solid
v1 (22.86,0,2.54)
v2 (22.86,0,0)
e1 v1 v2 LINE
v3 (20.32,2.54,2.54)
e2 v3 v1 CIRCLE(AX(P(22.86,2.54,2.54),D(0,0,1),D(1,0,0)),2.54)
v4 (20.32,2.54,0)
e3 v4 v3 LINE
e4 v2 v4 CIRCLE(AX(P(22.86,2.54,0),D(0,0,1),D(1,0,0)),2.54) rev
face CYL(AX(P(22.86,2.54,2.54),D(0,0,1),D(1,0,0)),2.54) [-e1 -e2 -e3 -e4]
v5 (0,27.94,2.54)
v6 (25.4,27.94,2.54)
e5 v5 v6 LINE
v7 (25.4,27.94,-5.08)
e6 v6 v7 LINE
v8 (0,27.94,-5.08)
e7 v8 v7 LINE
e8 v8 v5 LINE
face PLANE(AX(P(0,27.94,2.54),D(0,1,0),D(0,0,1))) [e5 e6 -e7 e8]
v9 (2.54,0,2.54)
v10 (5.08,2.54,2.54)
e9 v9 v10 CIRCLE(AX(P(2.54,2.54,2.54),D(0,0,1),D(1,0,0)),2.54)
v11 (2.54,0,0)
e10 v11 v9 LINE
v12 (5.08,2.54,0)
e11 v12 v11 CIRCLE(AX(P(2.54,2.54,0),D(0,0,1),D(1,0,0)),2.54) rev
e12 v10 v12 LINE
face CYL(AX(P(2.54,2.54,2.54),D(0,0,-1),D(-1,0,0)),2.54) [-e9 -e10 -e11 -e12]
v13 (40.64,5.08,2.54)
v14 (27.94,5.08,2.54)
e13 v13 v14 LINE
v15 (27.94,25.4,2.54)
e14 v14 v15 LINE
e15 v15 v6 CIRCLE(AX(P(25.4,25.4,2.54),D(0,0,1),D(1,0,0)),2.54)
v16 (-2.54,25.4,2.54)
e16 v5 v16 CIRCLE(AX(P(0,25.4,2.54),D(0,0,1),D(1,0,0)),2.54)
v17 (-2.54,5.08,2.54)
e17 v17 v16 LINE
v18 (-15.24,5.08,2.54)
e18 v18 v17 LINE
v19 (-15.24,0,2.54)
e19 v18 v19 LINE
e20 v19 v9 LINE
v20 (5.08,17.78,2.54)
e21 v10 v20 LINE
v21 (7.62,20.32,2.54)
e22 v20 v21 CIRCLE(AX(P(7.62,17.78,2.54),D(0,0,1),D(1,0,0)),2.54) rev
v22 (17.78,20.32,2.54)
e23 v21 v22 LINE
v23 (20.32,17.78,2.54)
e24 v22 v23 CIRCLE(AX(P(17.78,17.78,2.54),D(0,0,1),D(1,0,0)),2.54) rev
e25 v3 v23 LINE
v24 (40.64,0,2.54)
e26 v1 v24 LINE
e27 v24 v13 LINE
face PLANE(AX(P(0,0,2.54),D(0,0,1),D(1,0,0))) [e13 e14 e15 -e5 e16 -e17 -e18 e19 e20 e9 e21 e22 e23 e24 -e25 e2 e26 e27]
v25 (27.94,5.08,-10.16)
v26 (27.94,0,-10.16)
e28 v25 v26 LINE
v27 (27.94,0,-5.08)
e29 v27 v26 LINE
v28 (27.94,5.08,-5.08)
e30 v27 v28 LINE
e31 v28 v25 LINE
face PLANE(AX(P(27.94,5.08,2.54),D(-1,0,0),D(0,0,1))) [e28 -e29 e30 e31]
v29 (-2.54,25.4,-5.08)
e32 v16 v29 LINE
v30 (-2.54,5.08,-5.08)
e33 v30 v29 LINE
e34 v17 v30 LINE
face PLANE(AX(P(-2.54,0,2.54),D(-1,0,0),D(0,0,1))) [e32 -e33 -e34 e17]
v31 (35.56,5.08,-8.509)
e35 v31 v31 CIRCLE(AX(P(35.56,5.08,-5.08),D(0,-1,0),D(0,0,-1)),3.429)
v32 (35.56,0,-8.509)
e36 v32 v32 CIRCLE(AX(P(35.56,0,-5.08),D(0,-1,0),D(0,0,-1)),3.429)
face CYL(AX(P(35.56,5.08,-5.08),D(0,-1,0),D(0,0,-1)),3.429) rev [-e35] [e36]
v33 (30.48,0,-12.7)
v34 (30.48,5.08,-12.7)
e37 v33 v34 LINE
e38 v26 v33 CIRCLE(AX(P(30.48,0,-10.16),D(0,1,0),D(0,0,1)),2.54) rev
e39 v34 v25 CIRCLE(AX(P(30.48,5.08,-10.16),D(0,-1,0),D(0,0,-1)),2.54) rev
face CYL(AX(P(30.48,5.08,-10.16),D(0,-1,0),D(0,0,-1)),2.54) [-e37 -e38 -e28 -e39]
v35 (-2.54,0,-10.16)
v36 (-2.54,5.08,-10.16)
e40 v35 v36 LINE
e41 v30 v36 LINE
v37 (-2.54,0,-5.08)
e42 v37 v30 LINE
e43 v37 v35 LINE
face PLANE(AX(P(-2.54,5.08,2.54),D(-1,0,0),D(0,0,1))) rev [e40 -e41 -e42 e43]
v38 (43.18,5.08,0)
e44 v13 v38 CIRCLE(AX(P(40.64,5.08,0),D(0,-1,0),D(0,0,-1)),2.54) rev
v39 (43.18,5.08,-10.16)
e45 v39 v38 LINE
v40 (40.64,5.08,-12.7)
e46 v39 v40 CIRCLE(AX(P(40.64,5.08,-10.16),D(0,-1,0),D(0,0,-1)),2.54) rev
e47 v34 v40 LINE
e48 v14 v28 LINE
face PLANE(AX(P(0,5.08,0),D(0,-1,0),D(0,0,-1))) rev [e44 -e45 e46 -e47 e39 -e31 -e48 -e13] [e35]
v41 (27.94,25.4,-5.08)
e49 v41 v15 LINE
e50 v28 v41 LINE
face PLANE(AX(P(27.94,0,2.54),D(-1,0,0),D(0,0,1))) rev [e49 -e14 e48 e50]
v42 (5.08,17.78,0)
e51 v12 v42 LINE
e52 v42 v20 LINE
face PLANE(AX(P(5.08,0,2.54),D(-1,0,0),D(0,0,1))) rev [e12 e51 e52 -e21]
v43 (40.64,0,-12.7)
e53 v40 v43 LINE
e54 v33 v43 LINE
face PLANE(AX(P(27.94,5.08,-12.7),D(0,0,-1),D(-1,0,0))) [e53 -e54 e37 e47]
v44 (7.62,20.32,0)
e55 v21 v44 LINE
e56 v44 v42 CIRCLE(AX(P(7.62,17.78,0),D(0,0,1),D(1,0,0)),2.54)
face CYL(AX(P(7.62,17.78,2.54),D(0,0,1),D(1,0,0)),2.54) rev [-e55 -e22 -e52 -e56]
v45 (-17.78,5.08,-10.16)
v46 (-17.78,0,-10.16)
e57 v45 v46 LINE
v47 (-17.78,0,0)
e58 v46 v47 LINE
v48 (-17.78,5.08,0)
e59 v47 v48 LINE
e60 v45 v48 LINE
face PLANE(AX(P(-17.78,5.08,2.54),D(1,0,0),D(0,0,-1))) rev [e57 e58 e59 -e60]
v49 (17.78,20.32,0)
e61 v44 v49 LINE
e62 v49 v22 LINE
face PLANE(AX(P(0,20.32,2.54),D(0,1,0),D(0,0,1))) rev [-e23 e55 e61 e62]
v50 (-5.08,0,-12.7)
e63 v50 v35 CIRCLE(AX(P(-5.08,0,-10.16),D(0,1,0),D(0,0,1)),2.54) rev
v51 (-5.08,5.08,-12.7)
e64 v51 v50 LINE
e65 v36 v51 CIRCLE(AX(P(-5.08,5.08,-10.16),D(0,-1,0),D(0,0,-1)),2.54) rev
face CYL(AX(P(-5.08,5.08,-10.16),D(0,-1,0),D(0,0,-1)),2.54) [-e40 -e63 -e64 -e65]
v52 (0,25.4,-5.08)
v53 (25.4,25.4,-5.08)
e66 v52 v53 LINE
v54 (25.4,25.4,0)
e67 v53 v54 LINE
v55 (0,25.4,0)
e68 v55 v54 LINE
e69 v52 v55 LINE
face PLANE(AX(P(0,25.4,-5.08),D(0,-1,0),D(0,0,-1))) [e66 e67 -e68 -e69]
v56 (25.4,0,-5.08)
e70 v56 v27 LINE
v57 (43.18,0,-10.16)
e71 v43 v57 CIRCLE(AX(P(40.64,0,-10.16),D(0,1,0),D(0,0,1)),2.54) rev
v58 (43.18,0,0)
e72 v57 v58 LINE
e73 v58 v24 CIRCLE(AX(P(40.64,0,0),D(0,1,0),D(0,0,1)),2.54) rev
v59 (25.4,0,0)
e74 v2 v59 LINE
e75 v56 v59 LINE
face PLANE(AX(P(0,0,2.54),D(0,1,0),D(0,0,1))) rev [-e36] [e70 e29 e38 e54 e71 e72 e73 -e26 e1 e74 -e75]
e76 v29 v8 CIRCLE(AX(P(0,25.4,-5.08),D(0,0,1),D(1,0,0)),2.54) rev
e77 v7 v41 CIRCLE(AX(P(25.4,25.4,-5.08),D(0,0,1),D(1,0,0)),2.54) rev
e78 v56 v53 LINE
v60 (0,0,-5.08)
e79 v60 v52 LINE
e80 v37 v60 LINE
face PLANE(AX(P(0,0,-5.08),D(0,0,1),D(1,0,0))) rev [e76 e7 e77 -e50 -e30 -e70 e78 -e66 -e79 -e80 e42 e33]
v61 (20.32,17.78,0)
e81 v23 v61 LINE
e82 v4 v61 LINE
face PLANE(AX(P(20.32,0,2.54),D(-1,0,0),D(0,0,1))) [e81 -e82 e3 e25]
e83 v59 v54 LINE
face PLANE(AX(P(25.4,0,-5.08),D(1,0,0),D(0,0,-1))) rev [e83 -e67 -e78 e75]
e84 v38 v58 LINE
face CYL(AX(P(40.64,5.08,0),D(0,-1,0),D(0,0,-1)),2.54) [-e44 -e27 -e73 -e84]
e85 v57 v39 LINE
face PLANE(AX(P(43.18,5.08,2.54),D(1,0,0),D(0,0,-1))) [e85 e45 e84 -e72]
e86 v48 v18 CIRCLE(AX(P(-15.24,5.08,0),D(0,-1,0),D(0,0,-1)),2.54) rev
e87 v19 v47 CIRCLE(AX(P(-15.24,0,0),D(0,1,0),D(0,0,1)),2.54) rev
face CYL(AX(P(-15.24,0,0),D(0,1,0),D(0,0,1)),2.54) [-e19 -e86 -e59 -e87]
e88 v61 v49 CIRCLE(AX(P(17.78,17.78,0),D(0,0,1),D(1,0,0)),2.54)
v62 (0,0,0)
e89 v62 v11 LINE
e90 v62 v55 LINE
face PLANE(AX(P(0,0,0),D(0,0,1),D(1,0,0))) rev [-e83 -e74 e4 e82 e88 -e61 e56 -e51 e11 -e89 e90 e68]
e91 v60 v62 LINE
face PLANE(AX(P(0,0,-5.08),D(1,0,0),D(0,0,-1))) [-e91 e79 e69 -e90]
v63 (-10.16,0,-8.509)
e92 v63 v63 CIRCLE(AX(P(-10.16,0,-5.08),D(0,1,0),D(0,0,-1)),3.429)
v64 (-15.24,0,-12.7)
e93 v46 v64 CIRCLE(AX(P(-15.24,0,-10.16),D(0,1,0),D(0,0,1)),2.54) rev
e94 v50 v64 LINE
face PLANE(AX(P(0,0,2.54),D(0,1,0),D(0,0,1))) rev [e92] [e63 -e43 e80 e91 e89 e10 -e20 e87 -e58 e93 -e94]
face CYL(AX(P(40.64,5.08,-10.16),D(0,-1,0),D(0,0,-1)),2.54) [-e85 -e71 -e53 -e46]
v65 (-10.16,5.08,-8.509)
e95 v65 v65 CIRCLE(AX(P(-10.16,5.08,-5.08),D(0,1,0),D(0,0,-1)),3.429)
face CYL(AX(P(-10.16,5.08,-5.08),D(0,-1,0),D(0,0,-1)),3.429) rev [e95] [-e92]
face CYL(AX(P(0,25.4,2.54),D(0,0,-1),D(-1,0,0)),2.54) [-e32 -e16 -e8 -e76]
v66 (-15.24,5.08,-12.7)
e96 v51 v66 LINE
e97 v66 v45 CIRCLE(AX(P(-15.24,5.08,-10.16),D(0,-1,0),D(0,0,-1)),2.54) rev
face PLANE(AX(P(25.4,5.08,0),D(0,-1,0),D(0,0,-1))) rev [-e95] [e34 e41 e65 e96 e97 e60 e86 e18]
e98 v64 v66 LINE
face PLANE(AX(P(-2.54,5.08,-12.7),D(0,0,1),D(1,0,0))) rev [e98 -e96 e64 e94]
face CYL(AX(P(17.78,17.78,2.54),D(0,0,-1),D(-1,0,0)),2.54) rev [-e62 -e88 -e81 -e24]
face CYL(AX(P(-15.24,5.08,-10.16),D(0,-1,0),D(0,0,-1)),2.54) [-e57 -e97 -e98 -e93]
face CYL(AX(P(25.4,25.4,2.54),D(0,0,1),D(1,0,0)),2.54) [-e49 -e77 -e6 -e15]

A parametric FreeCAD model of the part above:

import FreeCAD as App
import Part
import Sketcher
Q = App.Units.Quantity


def edges_at(feature, points):
    """Names of the edges that pass closest to the given points."""
    edges = feature.Shape.Edges
    near = lambda p: min(range(len(edges)), key=lambda i: edges[i].distToShape(Part.Vertex(*p))[0])
    return sorted({f"Edge{near(p) + 1}" for p in points})

doc = App.newDocument("Part")
body = doc.addObject("PartDesign::Body", "Body")

sketch1 = body.newObject("Sketcher::SketchObject", "Sketch")
sketch1.AttachmentSupport = (doc.getObject("XY_Plane"), [""])
sketch1.MapMode = "FlatFace"
sketch1.addGeometry(Part.LineSegment(App.Vector(-2.54, 0, 0), App.Vector(5.08, 0, 0)), False)
sketch1.addGeometry(Part.LineSegment(App.Vector(5.08, 0, 0), App.Vector(5.08, 20.32, 0)), False)
sketch1.addGeometry(Part.LineSegment(App.Vector(5.08, 20.32, 0), App.Vector(20.32, 20.32, 0)), False)
sketch1.addGeometry(Part.LineSegment(App.Vector(20.32, 20.32, 0), App.Vector(20.32, 0, 0)), False)
sketch1.addGeometry(Part.LineSegment(App.Vector(20.32, 0, 0), App.Vector(27.94, 0, 0)), False)
sketch1.addGeometry(Part.LineSegment(App.Vector(27.94, 0, 0), App.Vector(27.94, 27.94, 0)), False)
sketch1.addGeometry(Part.LineSegment(App.Vector(27.94, 27.94, 0), App.Vector(-2.54, 27.94, 0)), False)
sketch1.addGeometry(Part.LineSegment(App.Vector(-2.54, 27.94, 0), App.Vector(-2.54, 0, 0)), False)
sketch1.addConstraint(Sketcher.Constraint("Coincident", 0, 2, 1, 1))
sketch1.addConstraint(Sketcher.Constraint("Coincident", 1, 2, 2, 1))
sketch1.addConstraint(Sketcher.Constraint("Coincident", 2, 2, 3, 1))
sketch1.addConstraint(Sketcher.Constraint("Coincident", 3, 2, 4, 1))
sketch1.addConstraint(Sketcher.Constraint("Coincident", 4, 2, 5, 1))
sketch1.addConstraint(Sketcher.Constraint("Coincident", 5, 2, 6, 1))
sketch1.addConstraint(Sketcher.Constraint("Coincident", 6, 2, 7, 1))
sketch1.addConstraint(Sketcher.Constraint("Coincident", 7, 2, 0, 1))
sketch1.addConstraint(Sketcher.Constraint("Horizontal", 0))
sketch1.addConstraint(Sketcher.Constraint("Vertical", 1))
sketch1.addConstraint(Sketcher.Constraint("Horizontal", 2))
sketch1.addConstraint(Sketcher.Constraint("Vertical", 3))
sketch1.addConstraint(Sketcher.Constraint("Horizontal", 4))
sketch1.addConstraint(Sketcher.Constraint("Vertical", 5))
sketch1.addConstraint(Sketcher.Constraint("Horizontal", 6))
sketch1.addConstraint(Sketcher.Constraint("Vertical", 7))
sketch1.addConstraint(Sketcher.Constraint("PointOnObject", 0, 2, -1))
sketch1.addConstraint(Sketcher.Constraint("PointOnObject", 3, 2, -1))
sketch1.addConstraint(Sketcher.Constraint("Equal", 0, 4))
sketch1.addConstraint(Sketcher.Constraint("DistanceX", 0, 1, 0, 2, Q("0.3 in")))
sketch1.addConstraint(Sketcher.Constraint("DistanceX", 2, 1, 2, 2, Q("0.6 in")))
sketch1.addConstraint(Sketcher.Constraint("DistanceY", 1, 1, 1, 2, Q("0.8 in")))
sketch1.addConstraint(Sketcher.Constraint("DistanceY", 5, 1, 5, 2, Q("1.1 in")))
sketch1.addConstraint(Sketcher.Constraint("DistanceX", -1, 1, 0, 2, Q("0.2 in")))
pad1 = body.newObject("PartDesign::Pad", "Pad")
pad1.Profile = sketch1
pad1.Length = Q("0.1 in")

sketch2 = body.newObject("Sketcher::SketchObject", "Sketch001")
sketch2.AttachmentSupport = (doc.getObject("XY_Plane"), [""])
sketch2.MapMode = "FlatFace"
sketch2.addGeometry(Part.LineSegment(App.Vector(25.4, 25.4, 0), App.Vector(25.4, 0, 0)), False)
sketch2.addGeometry(Part.LineSegment(App.Vector(25.4, 0, 0), App.Vector(27.94, 0, 0)), False)
sketch2.addGeometry(Part.LineSegment(App.Vector(27.94, 0, 0), App.Vector(27.94, 27.94, 0)), False)
sketch2.addGeometry(Part.LineSegment(App.Vector(27.94, 27.94, 0), App.Vector(-2.54, 27.94, 0)), False)
sketch2.addGeometry(Part.LineSegment(App.Vector(-2.54, 27.94, 0), App.Vector(-2.54, 0, 0)), False)
sketch2.addGeometry(Part.LineSegment(App.Vector(-2.54, 0, 0), App.Vector(0, 0, 0)), False)
sketch2.addGeometry(Part.LineSegment(App.Vector(0, 0, 0), App.Vector(0, 25.4, 0)), False)
sketch2.addGeometry(Part.LineSegment(App.Vector(0, 25.4, 0), App.Vector(25.4, 25.4, 0)), False)
sketch2.addConstraint(Sketcher.Constraint("Coincident", 0, 2, 1, 1))
sketch2.addConstraint(Sketcher.Constraint("Coincident", 1, 2, 2, 1))
sketch2.addConstraint(Sketcher.Constraint("Coincident", 2, 2, 3, 1))
sketch2.addConstraint(Sketcher.Constraint("Coincident", 3, 2, 4, 1))
sketch2.addConstraint(Sketcher.Constraint("Coincident", 4, 2, 5, 1))
sketch2.addConstraint(Sketcher.Constraint("Coincident", 5, 2, 6, 1))
sketch2.addConstraint(Sketcher.Constraint("Coincident", 6, 2, 7, 1))
sketch2.addConstraint(Sketcher.Constraint("Coincident", 7, 2, 0, 1))
sketch2.addConstraint(Sketcher.Constraint("Vertical", 0))
sketch2.addConstraint(Sketcher.Constraint("Horizontal", 1))
sketch2.addConstraint(Sketcher.Constraint("Vertical", 2))
sketch2.addConstraint(Sketcher.Constraint("Horizontal", 3))
sketch2.addConstraint(Sketcher.Constraint("Vertical", 4))
sketch2.addConstraint(Sketcher.Constraint("Horizontal", 5))
sketch2.addConstraint(Sketcher.Constraint("Vertical", 6))
sketch2.addConstraint(Sketcher.Constraint("Horizontal", 7))
sketch2.addConstraint(Sketcher.Constraint("Coincident", 5, 2, -1, 1))
sketch2.addConstraint(Sketcher.Constraint("PointOnObject", 0, 2, -1))
sketch2.addConstraint(Sketcher.Constraint("Equal", 1, 5))
sketch2.addConstraint(Sketcher.Constraint("Equal", 7, 0))
sketch2.addConstraint(Sketcher.Constraint("DistanceX", 7, 1, 7, 2, Q("1 in")))
sketch2.addConstraint(Sketcher.Constraint("DistanceX", 1, 1, 1, 2, Q("0.1 in")))
sketch2.addConstraint(Sketcher.Constraint("DistanceY", 2, 1, 2, 2, Q("1.1 in")))
pad2 = body.newObject("PartDesign::Pad", "Pad001")
pad2.Profile = sketch2
pad2.Length = Q("0.2 in")
pad2.Reversed = True

sketch3 = body.newObject("Sketcher::SketchObject", "Sketch002")
sketch3.AttachmentSupport = (doc.getObject("XZ_Plane"), [""])
sketch3.MapMode = "FlatFace"
sketch3.addGeometry(Part.LineSegment(App.Vector(27.94, 2.54, 0), App.Vector(27.94, -12.7, 0)), False)
sketch3.addGeometry(Part.LineSegment(App.Vector(27.94, -12.7, 0), App.Vector(43.18, -12.7, 0)), False)
sketch3.addGeometry(Part.LineSegment(App.Vector(43.18, -12.7, 0), App.Vector(43.18, 2.54, 0)), False)
sketch3.addGeometry(Part.LineSegment(App.Vector(43.18, 2.54, 0), App.Vector(27.94, 2.54, 0)), False)
sketch3.addGeometry(Part.Circle(App.Vector(35.56, -5.08, 0), App.Vector(0, 0, 1), 3.429), False)
sketch3.addConstraint(Sketcher.Constraint("Coincident", 0, 2, 1, 1))
sketch3.addConstraint(Sketcher.Constraint("Coincident", 1, 2, 2, 1))
sketch3.addConstraint(Sketcher.Constraint("Coincident", 2, 2, 3, 1))
sketch3.addConstraint(Sketcher.Constraint("Coincident", 3, 2, 0, 1))
sketch3.addConstraint(Sketcher.Constraint("Vertical", 0))
sketch3.addConstraint(Sketcher.Constraint("Horizontal", 1))
sketch3.addConstraint(Sketcher.Constraint("Vertical", 2))
sketch3.addConstraint(Sketcher.Constraint("Horizontal", 3))
sketch3.addConstraint(Sketcher.Constraint("Equal", 3, 0))
sketch3.addConstraint(Sketcher.Constraint("Diameter", 4, Q("0.27 in")))
sketch3.addConstraint(Sketcher.Constraint("DistanceX", 1, 1, 1, 2, Q("0.6 in")))
sketch3.addConstraint(Sketcher.Constraint("DistanceX", -1, 1, 4, 3, Q("1.4 in")))
sketch3.addConstraint(Sketcher.Constraint("DistanceY", 4, 3, -1, 1, Q("0.2 in")))
sketch3.addConstraint(Sketcher.Constraint("DistanceX", -1, 1, 0, 2, Q("1.1 in")))
sketch3.addConstraint(Sketcher.Constraint("DistanceY", 0, 2, -1, 1, Q("0.5 in")))
pad3 = body.newObject("PartDesign::Pad", "Pad002")
pad3.Profile = sketch3
pad3.Length = Q("0.2 in")
pad3.Reversed = True
doc.recompute()

datumplane = body.newObject("PartDesign::Plane", "DatumPlane")
datumplane.AttachmentSupport = (doc.getObject("YZ_Plane"), [""])
datumplane.MapMode = "FlatFace"
datumplane.AttachmentOffset = App.Placement(App.Vector(0, 0, 0.5 * 25.4), App.Rotation())
mirrored = body.newObject("PartDesign::Mirrored", "Mirrored")
mirrored.Originals = [pad3]
mirrored.MirrorPlane = (datumplane, [""])
body.Tip = mirrored
doc.recompute()

fillet = body.newObject("PartDesign::Fillet", "Fillet")
fillet.Base = (mirrored, edges_at(mirrored, [
    (20.32, 20.32, 1.27),
    (5.08, 20.32, 1.27),
    (5.08, 0, 1.27),
    (-2.54, 27.94, -1.27),
    (27.94, 27.94, -1.27),
    (20.32, 0, 1.27),
    (27.94, 2.54, -12.7),
    (43.18, 2.54, 2.54),
    (43.18, 2.54, -12.7),
    (-2.54, 2.54, -12.7),
    (-17.78, 2.54, -12.7),
    (-17.78, 2.54, 2.54),
]))
fillet.Radius = Q("0.1 in")

doc.recompute()
